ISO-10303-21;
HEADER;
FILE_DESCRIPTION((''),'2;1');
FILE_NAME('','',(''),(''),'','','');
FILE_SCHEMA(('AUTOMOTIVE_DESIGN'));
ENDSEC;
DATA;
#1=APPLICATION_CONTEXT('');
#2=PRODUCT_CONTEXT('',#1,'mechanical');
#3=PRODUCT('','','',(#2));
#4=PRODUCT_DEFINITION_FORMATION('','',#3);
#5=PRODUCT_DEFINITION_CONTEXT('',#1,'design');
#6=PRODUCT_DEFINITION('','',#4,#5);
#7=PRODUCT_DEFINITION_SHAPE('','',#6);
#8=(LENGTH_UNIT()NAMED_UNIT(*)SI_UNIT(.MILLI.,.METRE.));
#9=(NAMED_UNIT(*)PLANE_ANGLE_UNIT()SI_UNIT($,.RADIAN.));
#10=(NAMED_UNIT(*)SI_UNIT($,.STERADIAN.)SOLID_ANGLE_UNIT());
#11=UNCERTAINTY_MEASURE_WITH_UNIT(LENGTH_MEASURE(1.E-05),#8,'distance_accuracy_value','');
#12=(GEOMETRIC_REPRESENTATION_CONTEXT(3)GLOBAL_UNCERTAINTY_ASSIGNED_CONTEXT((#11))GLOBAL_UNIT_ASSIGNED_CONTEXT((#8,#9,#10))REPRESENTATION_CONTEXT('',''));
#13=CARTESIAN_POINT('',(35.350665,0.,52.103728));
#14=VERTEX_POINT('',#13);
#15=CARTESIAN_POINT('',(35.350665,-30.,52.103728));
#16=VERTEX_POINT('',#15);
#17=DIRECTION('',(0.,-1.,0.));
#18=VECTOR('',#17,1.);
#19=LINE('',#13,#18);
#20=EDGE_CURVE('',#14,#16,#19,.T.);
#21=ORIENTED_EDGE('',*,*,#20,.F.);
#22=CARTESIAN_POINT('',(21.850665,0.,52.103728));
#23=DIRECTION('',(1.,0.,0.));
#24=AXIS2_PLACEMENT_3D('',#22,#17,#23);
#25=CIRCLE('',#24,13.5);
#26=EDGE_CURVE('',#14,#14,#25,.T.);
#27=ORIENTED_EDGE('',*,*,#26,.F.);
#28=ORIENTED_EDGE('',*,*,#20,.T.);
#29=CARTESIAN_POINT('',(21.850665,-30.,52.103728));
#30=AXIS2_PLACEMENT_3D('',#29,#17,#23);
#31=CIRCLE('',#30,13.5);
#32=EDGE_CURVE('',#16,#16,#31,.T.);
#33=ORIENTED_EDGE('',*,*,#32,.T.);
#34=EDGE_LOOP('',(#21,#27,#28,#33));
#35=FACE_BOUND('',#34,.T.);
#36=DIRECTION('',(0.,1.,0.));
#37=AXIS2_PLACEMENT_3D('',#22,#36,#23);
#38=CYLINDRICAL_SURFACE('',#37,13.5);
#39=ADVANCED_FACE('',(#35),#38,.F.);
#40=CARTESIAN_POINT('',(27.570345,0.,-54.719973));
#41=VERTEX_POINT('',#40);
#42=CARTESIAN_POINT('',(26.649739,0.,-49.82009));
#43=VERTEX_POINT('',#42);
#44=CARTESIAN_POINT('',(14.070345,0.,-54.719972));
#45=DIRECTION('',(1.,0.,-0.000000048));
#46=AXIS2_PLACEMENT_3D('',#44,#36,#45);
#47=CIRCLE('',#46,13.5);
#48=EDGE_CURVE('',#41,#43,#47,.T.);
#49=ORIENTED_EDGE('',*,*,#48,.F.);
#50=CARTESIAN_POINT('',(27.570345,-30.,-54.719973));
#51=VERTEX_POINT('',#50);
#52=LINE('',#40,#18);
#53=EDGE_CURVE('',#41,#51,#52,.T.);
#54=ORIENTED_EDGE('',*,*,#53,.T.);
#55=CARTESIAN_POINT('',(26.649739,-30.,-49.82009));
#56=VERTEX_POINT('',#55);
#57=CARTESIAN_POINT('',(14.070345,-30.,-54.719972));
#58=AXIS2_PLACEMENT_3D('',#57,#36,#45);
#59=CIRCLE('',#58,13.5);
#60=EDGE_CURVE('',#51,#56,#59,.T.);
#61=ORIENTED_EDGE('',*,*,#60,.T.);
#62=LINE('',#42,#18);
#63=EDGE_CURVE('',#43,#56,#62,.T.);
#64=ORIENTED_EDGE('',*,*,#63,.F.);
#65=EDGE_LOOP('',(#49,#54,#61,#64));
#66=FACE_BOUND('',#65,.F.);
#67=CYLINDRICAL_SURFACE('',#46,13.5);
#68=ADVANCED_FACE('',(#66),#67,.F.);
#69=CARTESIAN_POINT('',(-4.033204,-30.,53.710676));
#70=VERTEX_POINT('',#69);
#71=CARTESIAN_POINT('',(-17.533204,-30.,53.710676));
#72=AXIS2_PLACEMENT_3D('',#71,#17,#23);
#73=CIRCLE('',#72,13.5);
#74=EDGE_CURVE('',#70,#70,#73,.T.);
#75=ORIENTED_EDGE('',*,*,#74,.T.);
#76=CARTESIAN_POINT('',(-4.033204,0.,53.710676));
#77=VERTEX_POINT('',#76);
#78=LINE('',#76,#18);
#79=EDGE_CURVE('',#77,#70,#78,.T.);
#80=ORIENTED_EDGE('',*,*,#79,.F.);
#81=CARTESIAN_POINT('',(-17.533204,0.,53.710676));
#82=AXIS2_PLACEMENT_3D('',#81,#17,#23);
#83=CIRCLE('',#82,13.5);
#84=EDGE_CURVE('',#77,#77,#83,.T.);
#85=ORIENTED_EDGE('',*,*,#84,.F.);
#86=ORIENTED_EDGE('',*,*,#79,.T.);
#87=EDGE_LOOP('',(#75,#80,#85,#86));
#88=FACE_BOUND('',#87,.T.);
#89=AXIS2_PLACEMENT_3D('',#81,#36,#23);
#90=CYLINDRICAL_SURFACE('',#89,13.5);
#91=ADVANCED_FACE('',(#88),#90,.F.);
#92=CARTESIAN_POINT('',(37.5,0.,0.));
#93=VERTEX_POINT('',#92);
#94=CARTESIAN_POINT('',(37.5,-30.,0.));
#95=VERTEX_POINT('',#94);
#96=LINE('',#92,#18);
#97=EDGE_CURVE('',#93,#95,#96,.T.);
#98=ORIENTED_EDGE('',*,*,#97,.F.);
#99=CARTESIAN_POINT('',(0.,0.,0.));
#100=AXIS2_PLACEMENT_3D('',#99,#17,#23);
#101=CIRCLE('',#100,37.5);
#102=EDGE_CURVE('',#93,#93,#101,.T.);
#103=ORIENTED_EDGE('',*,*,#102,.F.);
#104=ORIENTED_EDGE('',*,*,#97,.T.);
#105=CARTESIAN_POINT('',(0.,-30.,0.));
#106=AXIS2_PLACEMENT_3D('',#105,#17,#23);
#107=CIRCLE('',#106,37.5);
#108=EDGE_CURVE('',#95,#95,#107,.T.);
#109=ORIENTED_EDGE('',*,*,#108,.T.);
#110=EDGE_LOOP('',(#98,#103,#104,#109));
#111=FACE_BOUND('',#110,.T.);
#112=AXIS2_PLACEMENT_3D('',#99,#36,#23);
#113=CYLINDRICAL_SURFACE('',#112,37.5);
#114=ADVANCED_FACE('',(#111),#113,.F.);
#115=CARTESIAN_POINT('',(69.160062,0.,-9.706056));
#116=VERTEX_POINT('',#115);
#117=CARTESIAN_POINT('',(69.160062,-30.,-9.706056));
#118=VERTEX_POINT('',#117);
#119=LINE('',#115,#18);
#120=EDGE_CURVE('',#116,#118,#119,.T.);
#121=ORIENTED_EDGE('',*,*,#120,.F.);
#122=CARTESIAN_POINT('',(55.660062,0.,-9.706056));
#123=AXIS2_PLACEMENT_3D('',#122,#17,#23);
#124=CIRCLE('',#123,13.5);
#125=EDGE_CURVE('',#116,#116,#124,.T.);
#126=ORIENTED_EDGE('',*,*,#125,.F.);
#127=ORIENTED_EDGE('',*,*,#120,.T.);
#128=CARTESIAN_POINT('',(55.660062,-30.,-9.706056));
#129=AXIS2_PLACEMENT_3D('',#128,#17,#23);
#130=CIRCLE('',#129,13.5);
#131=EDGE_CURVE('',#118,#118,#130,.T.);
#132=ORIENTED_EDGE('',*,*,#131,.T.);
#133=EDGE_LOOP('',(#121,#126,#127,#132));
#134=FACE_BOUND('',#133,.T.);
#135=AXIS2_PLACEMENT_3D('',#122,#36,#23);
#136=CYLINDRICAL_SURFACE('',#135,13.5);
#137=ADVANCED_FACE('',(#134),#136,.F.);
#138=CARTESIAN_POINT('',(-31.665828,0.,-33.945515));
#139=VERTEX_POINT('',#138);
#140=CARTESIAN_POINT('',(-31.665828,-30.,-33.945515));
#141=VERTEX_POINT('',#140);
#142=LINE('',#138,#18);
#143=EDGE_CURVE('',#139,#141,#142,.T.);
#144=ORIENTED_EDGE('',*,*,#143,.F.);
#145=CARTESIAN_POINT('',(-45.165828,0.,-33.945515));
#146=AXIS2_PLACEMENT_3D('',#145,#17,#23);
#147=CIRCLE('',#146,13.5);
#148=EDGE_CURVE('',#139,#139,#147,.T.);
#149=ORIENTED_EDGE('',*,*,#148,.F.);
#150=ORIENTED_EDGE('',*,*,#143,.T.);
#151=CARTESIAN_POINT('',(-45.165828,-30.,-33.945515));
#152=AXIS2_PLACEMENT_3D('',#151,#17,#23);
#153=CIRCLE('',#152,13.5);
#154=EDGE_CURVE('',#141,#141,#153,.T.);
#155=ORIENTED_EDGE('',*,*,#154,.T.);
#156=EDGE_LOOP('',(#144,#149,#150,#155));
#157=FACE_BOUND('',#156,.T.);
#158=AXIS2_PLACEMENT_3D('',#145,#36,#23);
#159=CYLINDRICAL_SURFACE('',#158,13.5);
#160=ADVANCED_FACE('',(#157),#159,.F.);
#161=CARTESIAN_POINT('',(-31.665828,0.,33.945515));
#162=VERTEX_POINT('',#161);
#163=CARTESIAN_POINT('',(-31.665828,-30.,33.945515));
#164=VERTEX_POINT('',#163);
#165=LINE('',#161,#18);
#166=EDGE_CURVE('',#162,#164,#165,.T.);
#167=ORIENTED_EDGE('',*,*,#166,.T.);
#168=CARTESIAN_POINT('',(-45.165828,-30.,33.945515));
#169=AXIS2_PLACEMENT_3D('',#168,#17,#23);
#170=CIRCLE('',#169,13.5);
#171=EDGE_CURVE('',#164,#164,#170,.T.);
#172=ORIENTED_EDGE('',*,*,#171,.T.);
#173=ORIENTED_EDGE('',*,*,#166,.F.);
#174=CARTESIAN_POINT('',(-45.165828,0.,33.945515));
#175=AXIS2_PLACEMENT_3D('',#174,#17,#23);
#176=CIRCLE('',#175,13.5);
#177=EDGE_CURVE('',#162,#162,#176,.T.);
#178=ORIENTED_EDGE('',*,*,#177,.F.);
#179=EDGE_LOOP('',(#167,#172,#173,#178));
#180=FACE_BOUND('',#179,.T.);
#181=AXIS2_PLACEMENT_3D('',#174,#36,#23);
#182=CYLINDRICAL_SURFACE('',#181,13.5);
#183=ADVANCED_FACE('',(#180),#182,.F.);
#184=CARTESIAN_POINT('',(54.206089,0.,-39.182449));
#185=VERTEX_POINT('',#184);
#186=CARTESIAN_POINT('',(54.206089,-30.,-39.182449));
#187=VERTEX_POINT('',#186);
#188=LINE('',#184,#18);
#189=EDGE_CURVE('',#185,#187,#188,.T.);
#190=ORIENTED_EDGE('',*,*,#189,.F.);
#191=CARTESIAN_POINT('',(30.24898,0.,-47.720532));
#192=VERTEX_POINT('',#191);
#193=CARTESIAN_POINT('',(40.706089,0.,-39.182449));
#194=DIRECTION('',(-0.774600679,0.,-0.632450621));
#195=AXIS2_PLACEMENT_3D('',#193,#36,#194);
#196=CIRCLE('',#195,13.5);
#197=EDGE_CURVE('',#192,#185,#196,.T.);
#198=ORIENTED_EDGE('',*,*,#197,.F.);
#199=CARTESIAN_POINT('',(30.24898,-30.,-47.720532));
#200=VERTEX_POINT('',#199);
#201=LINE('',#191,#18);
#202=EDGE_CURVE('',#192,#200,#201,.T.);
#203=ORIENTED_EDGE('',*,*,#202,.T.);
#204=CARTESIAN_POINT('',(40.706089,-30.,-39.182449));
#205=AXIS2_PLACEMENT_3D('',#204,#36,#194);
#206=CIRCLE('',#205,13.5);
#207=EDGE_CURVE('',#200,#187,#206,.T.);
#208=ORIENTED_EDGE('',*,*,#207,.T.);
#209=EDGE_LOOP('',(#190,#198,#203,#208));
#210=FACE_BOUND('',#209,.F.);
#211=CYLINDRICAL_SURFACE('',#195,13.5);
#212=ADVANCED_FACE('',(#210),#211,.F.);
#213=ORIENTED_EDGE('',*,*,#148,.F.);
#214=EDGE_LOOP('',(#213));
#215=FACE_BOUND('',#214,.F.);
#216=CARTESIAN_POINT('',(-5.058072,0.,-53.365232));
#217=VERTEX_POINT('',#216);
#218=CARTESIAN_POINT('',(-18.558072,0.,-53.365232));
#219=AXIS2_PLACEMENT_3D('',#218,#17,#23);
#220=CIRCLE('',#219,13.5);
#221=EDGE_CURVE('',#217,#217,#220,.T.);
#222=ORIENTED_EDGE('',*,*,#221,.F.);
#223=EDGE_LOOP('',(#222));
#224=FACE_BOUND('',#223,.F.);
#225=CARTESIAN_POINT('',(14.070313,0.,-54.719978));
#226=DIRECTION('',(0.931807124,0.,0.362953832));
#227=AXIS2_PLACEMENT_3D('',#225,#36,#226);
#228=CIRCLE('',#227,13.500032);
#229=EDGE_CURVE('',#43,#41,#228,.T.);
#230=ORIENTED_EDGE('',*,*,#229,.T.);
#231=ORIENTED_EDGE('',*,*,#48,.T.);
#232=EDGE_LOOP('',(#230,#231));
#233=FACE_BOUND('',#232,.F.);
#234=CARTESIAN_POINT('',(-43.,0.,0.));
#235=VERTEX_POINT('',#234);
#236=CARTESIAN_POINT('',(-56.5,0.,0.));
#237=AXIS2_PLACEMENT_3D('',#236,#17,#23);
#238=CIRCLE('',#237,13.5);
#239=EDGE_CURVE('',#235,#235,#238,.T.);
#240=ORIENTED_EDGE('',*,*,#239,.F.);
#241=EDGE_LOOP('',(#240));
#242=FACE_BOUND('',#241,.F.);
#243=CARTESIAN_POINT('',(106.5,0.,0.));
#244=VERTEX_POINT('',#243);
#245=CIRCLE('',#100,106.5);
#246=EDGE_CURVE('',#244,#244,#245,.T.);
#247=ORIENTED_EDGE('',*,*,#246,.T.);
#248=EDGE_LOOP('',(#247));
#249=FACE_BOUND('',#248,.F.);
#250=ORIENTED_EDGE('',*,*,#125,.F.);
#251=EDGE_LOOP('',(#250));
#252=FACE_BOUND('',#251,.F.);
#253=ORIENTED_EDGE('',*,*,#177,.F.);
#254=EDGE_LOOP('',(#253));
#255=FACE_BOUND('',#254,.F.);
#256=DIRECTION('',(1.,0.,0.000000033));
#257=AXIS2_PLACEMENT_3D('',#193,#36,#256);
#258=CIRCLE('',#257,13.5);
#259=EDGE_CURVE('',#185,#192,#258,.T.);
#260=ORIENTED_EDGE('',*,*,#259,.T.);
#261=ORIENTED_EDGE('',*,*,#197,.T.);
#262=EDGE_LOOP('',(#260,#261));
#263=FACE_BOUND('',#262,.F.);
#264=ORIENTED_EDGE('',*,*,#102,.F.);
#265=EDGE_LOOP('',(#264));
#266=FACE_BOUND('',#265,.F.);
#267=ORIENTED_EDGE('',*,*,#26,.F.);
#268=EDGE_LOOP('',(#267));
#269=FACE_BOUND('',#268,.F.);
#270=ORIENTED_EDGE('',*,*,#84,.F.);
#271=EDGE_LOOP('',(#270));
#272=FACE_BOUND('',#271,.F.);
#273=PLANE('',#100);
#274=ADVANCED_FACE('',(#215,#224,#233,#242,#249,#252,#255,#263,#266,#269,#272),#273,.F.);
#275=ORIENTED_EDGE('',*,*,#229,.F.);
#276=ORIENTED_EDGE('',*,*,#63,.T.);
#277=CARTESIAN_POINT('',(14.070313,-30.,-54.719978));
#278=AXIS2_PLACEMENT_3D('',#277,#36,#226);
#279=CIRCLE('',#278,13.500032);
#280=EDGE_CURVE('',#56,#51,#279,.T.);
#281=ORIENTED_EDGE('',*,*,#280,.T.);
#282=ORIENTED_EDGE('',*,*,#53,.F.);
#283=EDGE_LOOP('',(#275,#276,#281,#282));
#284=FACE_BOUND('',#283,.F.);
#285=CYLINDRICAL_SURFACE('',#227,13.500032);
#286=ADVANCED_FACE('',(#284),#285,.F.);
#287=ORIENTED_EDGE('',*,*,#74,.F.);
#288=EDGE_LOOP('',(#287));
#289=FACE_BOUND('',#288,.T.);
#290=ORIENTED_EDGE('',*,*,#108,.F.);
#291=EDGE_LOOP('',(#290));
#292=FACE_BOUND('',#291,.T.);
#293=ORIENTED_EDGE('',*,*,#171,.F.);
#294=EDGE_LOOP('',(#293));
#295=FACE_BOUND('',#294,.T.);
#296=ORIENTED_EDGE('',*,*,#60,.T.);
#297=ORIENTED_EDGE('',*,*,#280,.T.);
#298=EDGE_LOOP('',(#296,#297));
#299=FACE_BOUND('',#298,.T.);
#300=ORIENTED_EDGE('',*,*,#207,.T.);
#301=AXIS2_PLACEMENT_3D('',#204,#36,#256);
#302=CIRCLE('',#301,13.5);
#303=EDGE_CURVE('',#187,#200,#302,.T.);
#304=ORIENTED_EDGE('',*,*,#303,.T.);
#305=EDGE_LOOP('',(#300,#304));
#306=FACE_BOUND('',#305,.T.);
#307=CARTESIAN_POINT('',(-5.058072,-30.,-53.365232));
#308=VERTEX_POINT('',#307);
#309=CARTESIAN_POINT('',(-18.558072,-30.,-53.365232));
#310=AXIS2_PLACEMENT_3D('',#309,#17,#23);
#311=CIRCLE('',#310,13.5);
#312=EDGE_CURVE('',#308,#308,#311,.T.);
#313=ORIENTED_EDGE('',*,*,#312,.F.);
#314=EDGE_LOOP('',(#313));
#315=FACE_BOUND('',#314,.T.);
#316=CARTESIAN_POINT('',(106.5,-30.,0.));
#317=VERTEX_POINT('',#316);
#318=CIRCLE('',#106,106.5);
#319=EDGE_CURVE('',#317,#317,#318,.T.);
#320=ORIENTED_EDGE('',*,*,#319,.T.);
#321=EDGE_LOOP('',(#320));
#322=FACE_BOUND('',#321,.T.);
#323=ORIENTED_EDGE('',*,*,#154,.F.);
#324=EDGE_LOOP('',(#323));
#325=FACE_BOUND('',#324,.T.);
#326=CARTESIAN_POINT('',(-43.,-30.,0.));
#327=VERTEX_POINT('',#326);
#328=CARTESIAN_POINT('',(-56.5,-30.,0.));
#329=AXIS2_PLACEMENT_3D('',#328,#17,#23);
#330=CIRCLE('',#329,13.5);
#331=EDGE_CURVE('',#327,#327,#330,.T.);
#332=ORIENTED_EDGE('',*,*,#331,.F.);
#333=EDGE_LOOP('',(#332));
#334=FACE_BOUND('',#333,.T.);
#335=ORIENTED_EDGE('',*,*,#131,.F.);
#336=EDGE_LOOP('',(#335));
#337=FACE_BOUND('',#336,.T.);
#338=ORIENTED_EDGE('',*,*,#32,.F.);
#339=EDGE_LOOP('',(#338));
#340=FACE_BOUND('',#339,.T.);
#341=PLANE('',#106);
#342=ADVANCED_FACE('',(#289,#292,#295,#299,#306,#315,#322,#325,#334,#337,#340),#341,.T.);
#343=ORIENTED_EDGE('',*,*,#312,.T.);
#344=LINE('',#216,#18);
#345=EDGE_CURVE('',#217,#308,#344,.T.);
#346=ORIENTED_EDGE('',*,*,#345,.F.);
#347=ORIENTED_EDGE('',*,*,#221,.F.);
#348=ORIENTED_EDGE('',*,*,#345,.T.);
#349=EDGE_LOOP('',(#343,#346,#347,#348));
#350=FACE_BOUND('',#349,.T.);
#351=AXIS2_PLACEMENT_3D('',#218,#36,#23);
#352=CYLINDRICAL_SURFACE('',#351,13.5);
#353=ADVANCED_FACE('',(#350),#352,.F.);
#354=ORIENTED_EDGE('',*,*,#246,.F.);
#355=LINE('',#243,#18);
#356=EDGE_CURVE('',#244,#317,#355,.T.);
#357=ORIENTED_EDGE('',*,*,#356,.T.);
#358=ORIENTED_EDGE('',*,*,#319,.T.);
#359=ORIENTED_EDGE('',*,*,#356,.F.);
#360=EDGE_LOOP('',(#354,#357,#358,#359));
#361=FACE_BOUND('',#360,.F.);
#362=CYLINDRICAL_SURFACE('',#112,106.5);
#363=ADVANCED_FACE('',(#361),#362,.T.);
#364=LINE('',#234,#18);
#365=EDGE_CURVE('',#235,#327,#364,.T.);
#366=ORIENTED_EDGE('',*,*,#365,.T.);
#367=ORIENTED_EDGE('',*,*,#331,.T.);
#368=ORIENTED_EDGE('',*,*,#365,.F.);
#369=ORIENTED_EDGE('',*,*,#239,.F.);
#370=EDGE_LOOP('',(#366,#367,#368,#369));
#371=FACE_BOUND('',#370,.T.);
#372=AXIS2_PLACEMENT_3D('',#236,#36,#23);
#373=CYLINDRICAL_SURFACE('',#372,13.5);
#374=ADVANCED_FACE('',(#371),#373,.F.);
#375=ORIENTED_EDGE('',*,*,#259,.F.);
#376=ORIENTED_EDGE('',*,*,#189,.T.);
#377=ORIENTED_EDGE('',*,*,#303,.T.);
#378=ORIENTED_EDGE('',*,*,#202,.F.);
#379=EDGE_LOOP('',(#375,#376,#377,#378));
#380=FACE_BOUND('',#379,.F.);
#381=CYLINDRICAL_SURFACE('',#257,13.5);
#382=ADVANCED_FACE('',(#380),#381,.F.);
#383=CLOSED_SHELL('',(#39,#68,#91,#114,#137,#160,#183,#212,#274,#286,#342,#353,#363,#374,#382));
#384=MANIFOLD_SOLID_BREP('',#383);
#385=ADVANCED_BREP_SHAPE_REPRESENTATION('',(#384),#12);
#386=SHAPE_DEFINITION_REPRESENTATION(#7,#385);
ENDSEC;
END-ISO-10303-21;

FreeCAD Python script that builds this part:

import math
import FreeCAD as App
import Part
import Sketcher

V = App.Vector
Q = App.Units.Quantity

doc = App.newDocument("Part")
params = doc.addObject("Spreadsheet::Sheet", "Params")
for row, (alias, value) in enumerate([
    ("sketch1_diameter", "213 mm"),
    ("sketch1_diameter2", "27 mm"),
    ("sketch1_diameter3", "27 mm"),
    ("sketch1_diameter4", "27 mm"),
    ("sketch1_diameter5", "27 mm"),
    ("pad1_length", "30 mm"),
], start=1):
    params.set(f"A{row}", alias)
    params.set(f"B{row}", "=" + value)
    params.setAlias(f"B{row}", alias)

body = doc.addObject("PartDesign::Body", "Body")

# Sketch on XZ plane
sketch1 = doc.addObject("Sketcher::SketchObject", "Sketch")
body.addObject(sketch1)
sketch1.AttachmentSupport = (doc.XZ_Plane, [""])
sketch1.MapMode = "FlatFace"
sketch1.addGeometry([
    Part.Circle(V(0, 0, 0), V(0, 0, 1), 106.5),  # 0
    Part.Circle(V(-18.558072, -53.365232, 0), V(0, 0, 1), 13.5),  # 1
    Part.Circle(V(-45.165828, -33.945515, 0), V(0, 0, 1), 13.5),  # 2
    Part.ArcOfCircle(Part.Circle(V(14.070345, -54.719972, 0), V(0, 0, 1), 13.5), math.radians(21.281737), math.radians(359.999997)),  # 3
    Part.ArcOfCircle(Part.Circle(V(14.070313, -54.719978, 0), V(0, 0, 1), 13.500032), math.radians(0.000022), math.radians(21.281712)),  # 4
    Part.ArcOfCircle(Part.Circle(V(40.706089, -39.182449, 0), V(0, 0, 1), 13.5), math.radians(-0.000001), math.radians(219.231157)),  # 5
    Part.ArcOfCircle(Part.Circle(V(40.706089, -39.182449, 0), V(0, 0, 1), 13.5), math.radians(-140.768846), math.radians(0.000002)),  # 6
    Part.Circle(V(55.660062, -9.706056, 0), V(0, 0, 1), 13.5),  # 7
    Part.Circle(V(-56.5, 0, 0), V(0, 0, 1), 13.5),  # 8
    Part.Circle(V(-45.165828, 33.945515, 0), V(0, 0, 1), 13.5),  # 9
    Part.Circle(V(-17.533204, 53.710676, 0), V(0, 0, 1), 13.5),  # 10
    Part.Circle(V(0, 0, 0), V(0, 0, 1), 37.5),  # 11
    Part.Circle(V(21.850665, 52.103728, 0), V(0, 0, 1), 13.5),  # 12
], False)
sketch1.addConstraint([
    Sketcher.Constraint("Coincident", 3, 1, 4, 2),
    Sketcher.Constraint("Coincident", 4, 1, 3, 2),
    Sketcher.Constraint("Coincident", 5, 1, 6, 2),
    Sketcher.Constraint("Coincident", 6, 1, 5, 2),
    Sketcher.Constraint("Coincident", 0, 3, -1, 1),
    Sketcher.Constraint("Coincident", 11, 3, -1, 1),
    Sketcher.Constraint("PointOnObject", 8, 3, -1),
    Sketcher.Constraint("Diameter", 0, Q("213 mm")),
    Sketcher.Constraint("Diameter", 1, Q("27 mm")),
    Sketcher.Constraint("Diameter", 2, Q("27 mm")),
    Sketcher.Constraint("Diameter", 7, Q("27 mm")),
    Sketcher.Constraint("Diameter", 8, Q("27 mm")),
    Sketcher.Constraint("Diameter", 9, Q("27 mm")),
    Sketcher.Constraint("Diameter", 10, Q("27 mm")),
    Sketcher.Constraint("Diameter", 11, Q("75 mm")),
    Sketcher.Constraint("Diameter", 12, Q("27 mm")),
    Sketcher.Constraint("Radius", 3, Q("13.5 mm")),
    Sketcher.Constraint("Radius", 5, Q("13.5 mm")),
    Sketcher.Constraint("Radius", 6, Q("13.5 mm")),
    Sketcher.Constraint("DistanceX", 8, 3, -1, 1, Q("56.5 mm")),
    Sketcher.Constraint("Radius", 4, Q("13.500032 mm")),
    Sketcher.Constraint("DistanceX", 1, 3, -1, 1, Q("18.558072 mm")),
    Sketcher.Constraint("DistanceY", 4, 3, -1, 1, Q("54.719978 mm")),
    Sketcher.Constraint("DistanceX", -1, 1, 5, 3, Q("40.706089 mm")),
    Sketcher.Constraint("DistanceY", 5, 3, -1, 1, Q("39.182449 mm")),
    Sketcher.Constraint("DistanceX", -1, 1, 3, 1, Q("26.649739 mm")),
    Sketcher.Constraint("DistanceY", 3, 1, -1, 1, Q("49.82009 mm")),
    Sketcher.Constraint("DistanceY", 5, 1, -1, 1, Q("39.182449 mm")),
    Sketcher.Constraint("DistanceX", -1, 1, 6, 1, Q("30.24898 mm")),
    Sketcher.Constraint("DistanceY", 3, 3, 1, 3, Q("1.35474 mm")),
    Sketcher.Constraint("DistanceX", 2, 3, 4, 3, Q("59.236141 mm")),
    Sketcher.Constraint("DistanceX", 4, 3, 7, 3, Q("41.589749 mm")),
    Sketcher.Constraint("DistanceY", 2, 3, 9, 3, Q("67.89103 mm")),
    Sketcher.Constraint("DistanceX", 9, 3, 4, 3, Q("59.236141 mm")),
    Sketcher.Constraint("DistanceY", 9, 3, 10, 3, Q("19.765161 mm")),
    Sketcher.Constraint("DistanceY", 7, 3, 10, 3, Q("63.416732 mm")),
    Sketcher.Constraint("DistanceX", 10, 3, 12, 3, Q("39.383869 mm")),
    Sketcher.Constraint("DistanceY", 12, 3, 10, 3, Q("1.606948 mm")),
    Sketcher.Constraint("DistanceY", 4, 1, 6, 1, Q("6.999441 mm")),
    Sketcher.Constraint("DistanceY", 2, 3, -1, 1, Q("33.945515 mm")),
    Sketcher.Constraint("DistanceX", 10, 3, -1, 1, Q("17.533204 mm")),
])
sketch1.setExpression("Constraints[7]", "Params.sketch1_diameter")
sketch1.setExpression("Constraints[8]", "Params.sketch1_diameter2")
sketch1.setExpression("Constraints[9]", "Params.sketch1_diameter3")
sketch1.setExpression("Constraints[10]", "Params.sketch1_diameter4")
sketch1.setExpression("Constraints[11]", "Params.sketch1_diameter5")
pad1 = doc.addObject("PartDesign::Pad", "Pad")
body.addObject(pad1)
pad1.Profile = sketch1
pad1.setExpression("Length", "Params.pad1_length")

doc.recompute()
